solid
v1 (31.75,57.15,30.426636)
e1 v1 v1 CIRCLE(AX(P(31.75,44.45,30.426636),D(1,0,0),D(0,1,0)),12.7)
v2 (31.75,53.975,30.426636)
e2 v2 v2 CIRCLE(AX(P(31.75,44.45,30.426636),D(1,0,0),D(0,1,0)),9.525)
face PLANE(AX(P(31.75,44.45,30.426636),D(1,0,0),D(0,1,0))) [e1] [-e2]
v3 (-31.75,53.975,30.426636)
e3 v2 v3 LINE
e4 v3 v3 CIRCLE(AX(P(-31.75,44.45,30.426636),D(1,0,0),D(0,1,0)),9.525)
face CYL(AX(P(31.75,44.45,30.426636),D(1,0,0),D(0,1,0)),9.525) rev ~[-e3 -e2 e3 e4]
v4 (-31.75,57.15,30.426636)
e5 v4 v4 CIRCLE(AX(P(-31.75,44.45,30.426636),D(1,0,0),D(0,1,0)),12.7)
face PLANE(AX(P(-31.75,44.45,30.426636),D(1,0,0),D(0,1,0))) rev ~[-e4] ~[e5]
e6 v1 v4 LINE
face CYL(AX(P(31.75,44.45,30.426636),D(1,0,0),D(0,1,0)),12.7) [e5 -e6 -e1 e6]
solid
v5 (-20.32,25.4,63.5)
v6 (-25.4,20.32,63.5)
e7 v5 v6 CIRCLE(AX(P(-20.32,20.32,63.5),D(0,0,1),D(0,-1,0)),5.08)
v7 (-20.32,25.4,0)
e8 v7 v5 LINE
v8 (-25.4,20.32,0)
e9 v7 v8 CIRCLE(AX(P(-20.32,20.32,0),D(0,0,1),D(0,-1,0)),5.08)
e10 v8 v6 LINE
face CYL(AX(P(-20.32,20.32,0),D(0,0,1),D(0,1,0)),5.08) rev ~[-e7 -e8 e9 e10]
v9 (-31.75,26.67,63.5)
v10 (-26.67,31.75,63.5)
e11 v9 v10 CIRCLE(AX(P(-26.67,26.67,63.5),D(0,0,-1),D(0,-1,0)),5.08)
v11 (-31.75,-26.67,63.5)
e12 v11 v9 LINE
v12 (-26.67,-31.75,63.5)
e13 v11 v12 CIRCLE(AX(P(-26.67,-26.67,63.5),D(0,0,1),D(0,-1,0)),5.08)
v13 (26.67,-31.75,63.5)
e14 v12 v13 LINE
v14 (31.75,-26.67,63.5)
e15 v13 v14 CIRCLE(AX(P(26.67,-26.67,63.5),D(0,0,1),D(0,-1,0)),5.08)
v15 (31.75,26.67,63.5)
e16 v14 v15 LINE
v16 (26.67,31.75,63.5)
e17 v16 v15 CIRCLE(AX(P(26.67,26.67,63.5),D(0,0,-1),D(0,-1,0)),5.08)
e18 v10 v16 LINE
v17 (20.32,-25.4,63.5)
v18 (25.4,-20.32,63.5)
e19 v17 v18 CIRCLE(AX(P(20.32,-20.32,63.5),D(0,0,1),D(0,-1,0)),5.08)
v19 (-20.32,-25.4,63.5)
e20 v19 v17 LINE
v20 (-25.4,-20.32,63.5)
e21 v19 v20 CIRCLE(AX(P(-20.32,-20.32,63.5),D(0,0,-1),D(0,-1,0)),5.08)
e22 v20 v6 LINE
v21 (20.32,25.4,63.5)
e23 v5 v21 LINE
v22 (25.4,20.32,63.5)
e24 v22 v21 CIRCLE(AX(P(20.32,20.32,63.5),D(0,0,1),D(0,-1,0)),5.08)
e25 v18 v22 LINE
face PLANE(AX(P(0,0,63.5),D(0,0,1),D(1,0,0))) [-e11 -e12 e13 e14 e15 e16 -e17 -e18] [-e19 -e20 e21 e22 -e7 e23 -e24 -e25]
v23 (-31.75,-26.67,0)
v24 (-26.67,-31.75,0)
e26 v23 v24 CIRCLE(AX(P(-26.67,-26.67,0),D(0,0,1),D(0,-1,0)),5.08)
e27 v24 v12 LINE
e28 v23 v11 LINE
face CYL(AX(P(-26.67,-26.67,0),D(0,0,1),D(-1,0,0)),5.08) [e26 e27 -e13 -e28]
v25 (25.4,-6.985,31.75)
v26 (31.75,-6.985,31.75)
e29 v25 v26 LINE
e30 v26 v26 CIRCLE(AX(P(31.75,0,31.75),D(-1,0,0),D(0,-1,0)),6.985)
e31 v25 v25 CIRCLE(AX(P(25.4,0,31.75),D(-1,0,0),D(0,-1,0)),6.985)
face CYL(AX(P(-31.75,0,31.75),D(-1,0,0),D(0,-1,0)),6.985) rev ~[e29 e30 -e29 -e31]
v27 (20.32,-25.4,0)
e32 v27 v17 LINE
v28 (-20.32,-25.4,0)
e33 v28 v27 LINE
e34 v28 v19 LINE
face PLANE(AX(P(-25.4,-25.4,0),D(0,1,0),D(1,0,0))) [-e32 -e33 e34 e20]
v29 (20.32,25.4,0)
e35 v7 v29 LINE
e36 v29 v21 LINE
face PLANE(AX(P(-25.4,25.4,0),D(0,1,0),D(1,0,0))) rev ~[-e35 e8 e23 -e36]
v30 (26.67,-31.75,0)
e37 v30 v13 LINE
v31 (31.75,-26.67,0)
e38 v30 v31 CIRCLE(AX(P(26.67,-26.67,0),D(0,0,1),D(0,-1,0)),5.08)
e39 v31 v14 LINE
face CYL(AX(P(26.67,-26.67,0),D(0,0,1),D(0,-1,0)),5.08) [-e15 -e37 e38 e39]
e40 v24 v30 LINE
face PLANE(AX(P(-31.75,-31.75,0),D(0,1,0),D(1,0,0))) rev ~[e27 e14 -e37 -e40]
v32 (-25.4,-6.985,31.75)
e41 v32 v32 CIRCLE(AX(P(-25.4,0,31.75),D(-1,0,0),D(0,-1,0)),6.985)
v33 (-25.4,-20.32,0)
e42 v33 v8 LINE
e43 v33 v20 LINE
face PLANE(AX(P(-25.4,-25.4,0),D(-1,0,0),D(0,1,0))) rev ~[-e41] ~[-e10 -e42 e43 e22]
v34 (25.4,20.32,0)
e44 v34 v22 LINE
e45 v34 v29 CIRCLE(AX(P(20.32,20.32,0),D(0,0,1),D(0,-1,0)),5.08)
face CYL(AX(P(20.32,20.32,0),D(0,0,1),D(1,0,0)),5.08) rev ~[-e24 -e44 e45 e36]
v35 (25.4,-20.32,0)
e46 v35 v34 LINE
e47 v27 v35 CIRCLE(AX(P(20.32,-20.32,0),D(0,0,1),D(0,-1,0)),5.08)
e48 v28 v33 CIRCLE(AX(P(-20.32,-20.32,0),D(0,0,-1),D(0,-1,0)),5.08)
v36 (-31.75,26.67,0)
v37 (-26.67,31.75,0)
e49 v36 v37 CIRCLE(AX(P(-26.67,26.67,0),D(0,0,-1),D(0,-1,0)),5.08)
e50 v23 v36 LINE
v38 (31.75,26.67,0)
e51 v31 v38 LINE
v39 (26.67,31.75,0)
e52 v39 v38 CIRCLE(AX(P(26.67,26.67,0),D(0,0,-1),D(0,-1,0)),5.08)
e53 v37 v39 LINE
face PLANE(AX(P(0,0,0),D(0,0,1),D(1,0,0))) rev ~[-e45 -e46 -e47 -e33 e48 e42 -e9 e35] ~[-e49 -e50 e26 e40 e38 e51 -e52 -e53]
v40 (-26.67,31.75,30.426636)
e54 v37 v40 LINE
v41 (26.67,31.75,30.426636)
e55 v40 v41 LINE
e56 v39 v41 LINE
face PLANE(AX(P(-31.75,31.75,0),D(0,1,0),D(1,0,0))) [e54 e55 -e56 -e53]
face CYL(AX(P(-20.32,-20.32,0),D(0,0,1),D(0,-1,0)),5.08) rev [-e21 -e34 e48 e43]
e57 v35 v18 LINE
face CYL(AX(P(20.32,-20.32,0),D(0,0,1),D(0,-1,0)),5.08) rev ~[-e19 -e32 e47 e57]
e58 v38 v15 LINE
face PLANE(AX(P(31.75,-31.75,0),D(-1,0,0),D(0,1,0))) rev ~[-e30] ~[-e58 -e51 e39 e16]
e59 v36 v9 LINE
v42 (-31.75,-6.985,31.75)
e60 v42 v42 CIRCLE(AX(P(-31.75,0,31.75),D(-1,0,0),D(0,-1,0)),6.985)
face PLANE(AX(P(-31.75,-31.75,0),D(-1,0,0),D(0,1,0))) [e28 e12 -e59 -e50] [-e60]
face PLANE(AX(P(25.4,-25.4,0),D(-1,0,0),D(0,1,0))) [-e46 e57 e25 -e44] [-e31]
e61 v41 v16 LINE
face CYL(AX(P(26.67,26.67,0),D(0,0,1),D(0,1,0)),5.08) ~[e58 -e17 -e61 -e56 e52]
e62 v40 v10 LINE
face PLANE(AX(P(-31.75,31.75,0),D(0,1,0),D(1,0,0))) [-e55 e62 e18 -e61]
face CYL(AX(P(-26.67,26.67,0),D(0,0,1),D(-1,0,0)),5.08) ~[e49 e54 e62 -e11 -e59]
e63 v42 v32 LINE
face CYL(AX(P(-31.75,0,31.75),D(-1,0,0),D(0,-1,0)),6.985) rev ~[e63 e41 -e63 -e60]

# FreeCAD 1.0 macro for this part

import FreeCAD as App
import Part
import Sketcher
Q = App.Units.Quantity


def edges_at(feature, points):
    """Names of the edges that pass closest to the given points."""
    edges = feature.Shape.Edges
    near = lambda p: min(range(len(edges)), key=lambda i: edges[i].distToShape(Part.Vertex(*p))[0])
    return sorted({f"Edge{near(p) + 1}" for p in points})


def add_polygon(sketch, points):
    """Adds a closed chain of lines whose ends are joined by coincident constraints."""
    first, n = sketch.GeometryCount, len(points)
    for a, b in zip(points, points[1:] + points[:1]):
        sketch.addGeometry(Part.LineSegment(App.Vector(*a, 0), App.Vector(*b, 0)), False)
    for i in range(n):
        sketch.addConstraint(Sketcher.Constraint("Coincident", first + i, 2, first + (i + 1) % n, 1))

doc = App.newDocument("Part")
body = doc.addObject("PartDesign::Body", "Body")
body.AllowCompound = True

# Sketch on XY plane
sketch1 = doc.addObject("Sketcher::SketchObject", "Sketch")
body.addObject(sketch1)
sketch1.AttachmentSupport = (doc.XY_Plane, [""])
sketch1.MapMode = "FlatFace"
add_polygon(sketch1, [(-31.75, 31.75), (-31.75, -31.75), (31.75, -31.75), (31.75, 31.75)])  # lines 0-3
add_polygon(sketch1, [(25.4, -25.4), (-25.4, -25.4), (-25.4, 25.4), (25.4, 25.4)])  # lines 4-7
sketch1.addConstraint([
    Sketcher.Constraint("Vertical", 0),
    Sketcher.Constraint("Horizontal", 1),
    Sketcher.Constraint("Vertical", 2),
    Sketcher.Constraint("Horizontal", 3),
    Sketcher.Constraint("Horizontal", 4),
    Sketcher.Constraint("Vertical", 5),
    Sketcher.Constraint("Horizontal", 6),
    Sketcher.Constraint("Vertical", 7),
    Sketcher.Constraint("Symmetric", 0, 2, 2, 2, -1, 1),
    Sketcher.Constraint("Symmetric", 4, 2, 6, 2, -1, 1),
    Sketcher.Constraint("Equal", 3, 0),
    Sketcher.Constraint("Equal", 6, 5),
    Sketcher.Constraint("DistanceX", 4, 2, 4, 1, Q("2 in")),
    Sketcher.Constraint("DistanceX", 1, 1, 1, 2, Q("2.5 in")),
])
pad1 = doc.addObject("PartDesign::Pad", "Pad")
body.addObject(pad1)
pad1.Profile = sketch1
pad1.Length = Q("2.5 in")
doc.recompute()

fillet = doc.addObject("PartDesign::Fillet", "Fillet")
body.addObject(fillet)
fillet.Base = (pad1, edges_at(pad1, [
    (31.75, -31.75, 31.75),
    (-31.75, -31.75, 31.75),
    (-31.75, 31.75, 31.75),
    (31.75, 31.75, 31.75),
    (25.4, -25.4, 31.75),
    (25.4, 25.4, 31.75),
    (-25.4, 25.4, 31.75),
    (-25.4, -25.4, 31.75),
]))
fillet.Radius = Q("0.2 in")

# Sketch on YZ plane
sketch2 = doc.addObject("Sketcher::SketchObject", "Sketch001")
body.addObject(sketch2)
sketch2.AttachmentSupport = (doc.YZ_Plane, [""])
sketch2.MapMode = "FlatFace"
sketch2.AttachmentOffset = App.Placement(App.Vector(0, 0, -1.25 * 25.4), App.Rotation())
sketch2.addGeometry(Part.Circle(App.Vector(0, 31.75, 0), App.Vector(0, 0, 1), 6.985), False)
sketch2.addConstraint([
    Sketcher.Constraint("PointOnObject", 0, 3, -2),
    Sketcher.Constraint("Diameter", 0, Q("0.55 in")),
    Sketcher.Constraint("DistanceY", -1, 1, 0, 3, Q("1.25 in")),
])
pocket1 = doc.addObject("PartDesign::Pocket", "Pocket")
body.addObject(pocket1)
pocket1.Profile = sketch2
pocket1.Length = Q("2.5 in")
pocket1.Reversed = True

# Sketch on YZ plane
sketch3 = doc.addObject("Sketcher::SketchObject", "Sketch002")
body.addObject(sketch3)
sketch3.AttachmentSupport = (doc.YZ_Plane, [""])
sketch3.MapMode = "FlatFace"
sketch3.AttachmentOffset = App.Placement(App.Vector(0, 0, 1.25 * 25.4), App.Rotation())
sketch3.addGeometry([
    Part.Circle(App.Vector(44.45, 30.426636, 0), App.Vector(0, 0, 1), 12.7),
    Part.Circle(App.Vector(44.45, 30.426636, 0), App.Vector(0, 0, 1), 9.525),
], False)
sketch3.addConstraint([
    Sketcher.Constraint("Coincident", 1, 3, 0, 3),
    Sketcher.Constraint("Diameter", 0, Q("1 in")),
    Sketcher.Constraint("Diameter", 1, Q("0.75 in")),
    Sketcher.Constraint("DistanceX", -1, 1, 0, 3, Q("1.75 in")),
    Sketcher.Constraint("DistanceY", -1, 1, 0, 3, Q("30.426636 mm")),
])
pad2 = doc.addObject("PartDesign::Pad", "Pad001")
body.addObject(pad2)
pad2.Profile = sketch3
pad2.Length = Q("2.5 in")
pad2.Reversed = True

doc.recompute()
